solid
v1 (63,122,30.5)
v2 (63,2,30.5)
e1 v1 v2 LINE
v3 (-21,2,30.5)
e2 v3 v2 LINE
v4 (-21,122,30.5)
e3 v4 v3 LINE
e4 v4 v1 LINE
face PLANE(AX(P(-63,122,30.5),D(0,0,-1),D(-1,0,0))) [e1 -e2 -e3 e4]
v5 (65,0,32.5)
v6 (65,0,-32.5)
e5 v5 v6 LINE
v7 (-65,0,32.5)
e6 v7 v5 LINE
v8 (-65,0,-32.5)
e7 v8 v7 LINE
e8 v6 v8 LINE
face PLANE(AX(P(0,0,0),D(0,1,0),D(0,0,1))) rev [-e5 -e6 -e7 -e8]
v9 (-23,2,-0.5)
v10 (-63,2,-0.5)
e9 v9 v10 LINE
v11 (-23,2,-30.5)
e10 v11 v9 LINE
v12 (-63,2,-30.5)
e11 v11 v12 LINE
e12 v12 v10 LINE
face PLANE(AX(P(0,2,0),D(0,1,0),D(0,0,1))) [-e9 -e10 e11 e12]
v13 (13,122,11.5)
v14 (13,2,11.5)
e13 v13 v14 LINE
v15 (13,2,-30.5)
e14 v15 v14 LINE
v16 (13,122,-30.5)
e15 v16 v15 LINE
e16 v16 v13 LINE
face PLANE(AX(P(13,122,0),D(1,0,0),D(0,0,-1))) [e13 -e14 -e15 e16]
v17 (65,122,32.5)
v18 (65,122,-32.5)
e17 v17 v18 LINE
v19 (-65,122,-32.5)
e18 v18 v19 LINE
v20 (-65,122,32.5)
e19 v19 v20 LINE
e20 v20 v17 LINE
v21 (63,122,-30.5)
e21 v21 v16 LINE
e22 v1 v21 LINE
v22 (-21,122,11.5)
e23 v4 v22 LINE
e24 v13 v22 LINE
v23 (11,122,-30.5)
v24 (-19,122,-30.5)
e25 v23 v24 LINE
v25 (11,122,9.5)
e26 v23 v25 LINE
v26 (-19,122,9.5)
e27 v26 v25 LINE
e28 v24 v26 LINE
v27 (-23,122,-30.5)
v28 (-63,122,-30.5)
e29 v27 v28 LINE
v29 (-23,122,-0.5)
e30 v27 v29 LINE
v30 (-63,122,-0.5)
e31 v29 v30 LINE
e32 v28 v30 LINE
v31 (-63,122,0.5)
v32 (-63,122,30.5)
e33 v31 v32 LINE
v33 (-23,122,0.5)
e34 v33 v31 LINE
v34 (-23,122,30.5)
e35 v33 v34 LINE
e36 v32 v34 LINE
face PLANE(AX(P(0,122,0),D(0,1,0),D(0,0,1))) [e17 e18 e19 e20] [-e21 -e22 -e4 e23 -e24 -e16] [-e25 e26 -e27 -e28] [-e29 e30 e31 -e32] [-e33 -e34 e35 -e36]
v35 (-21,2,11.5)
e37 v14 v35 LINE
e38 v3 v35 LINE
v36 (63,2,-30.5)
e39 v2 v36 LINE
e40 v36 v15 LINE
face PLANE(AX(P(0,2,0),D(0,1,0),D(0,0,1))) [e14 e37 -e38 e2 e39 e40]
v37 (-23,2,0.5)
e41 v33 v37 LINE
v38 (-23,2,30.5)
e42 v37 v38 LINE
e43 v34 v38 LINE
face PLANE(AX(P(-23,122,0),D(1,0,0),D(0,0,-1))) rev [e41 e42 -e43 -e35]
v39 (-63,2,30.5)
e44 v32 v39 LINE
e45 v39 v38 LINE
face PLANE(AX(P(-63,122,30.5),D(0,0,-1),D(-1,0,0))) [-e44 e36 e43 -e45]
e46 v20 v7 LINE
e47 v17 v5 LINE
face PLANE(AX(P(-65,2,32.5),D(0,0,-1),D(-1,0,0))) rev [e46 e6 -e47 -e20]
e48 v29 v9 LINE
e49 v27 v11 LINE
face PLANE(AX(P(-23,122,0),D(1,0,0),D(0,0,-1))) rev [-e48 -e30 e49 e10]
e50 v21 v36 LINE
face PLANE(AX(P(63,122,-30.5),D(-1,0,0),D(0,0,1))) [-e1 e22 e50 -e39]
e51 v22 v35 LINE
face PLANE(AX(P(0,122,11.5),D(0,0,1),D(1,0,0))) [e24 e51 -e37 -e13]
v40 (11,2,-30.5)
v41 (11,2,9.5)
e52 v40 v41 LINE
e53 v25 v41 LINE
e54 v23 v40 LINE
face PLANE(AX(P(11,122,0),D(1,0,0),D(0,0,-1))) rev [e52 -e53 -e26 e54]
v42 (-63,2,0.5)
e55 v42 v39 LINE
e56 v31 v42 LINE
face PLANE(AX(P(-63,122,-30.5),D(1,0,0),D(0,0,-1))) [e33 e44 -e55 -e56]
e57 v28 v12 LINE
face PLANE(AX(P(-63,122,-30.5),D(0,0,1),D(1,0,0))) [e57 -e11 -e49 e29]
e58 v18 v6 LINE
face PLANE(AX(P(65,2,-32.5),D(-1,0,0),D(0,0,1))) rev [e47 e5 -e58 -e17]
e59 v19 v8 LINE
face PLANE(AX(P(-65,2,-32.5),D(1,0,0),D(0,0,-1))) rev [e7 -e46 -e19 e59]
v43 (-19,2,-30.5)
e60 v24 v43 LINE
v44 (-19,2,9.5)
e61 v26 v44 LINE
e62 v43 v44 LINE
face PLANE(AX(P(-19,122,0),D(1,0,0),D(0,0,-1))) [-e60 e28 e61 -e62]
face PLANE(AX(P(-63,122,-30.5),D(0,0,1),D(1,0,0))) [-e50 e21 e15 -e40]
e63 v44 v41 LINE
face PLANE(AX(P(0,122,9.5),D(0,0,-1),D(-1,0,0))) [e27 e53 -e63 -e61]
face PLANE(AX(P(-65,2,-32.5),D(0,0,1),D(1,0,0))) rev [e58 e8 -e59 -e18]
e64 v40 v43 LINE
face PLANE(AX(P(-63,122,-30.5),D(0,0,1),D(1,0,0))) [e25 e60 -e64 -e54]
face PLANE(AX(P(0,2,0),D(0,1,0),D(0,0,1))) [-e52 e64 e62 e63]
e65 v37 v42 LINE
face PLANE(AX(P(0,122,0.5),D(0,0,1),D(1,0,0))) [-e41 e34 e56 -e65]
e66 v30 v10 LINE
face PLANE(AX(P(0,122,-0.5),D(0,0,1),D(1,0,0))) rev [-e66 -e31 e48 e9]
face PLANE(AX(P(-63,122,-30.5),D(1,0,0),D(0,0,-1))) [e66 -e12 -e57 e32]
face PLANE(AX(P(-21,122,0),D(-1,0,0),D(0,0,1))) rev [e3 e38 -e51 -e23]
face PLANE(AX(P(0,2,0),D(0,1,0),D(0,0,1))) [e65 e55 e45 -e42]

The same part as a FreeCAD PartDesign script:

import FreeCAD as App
import Part
import Sketcher
from FreeCAD import Vector
Q = App.Units.Quantity

doc = App.newDocument("Part")
body = doc.addObject("PartDesign::Body", "Body")

sketch1 = body.newObject("Sketcher::SketchObject", "Sketch")
sketch1.AttachmentSupport = (doc.getObject("XZ_Plane"), [""])
sketch1.MapMode = "FlatFace"
sketch1.addGeometry([
    Part.LineSegment(Vector(-65, -32, 0), Vector(-65, 32, 0)),
    Part.LineSegment(Vector(-65, 32, 0), Vector(65, 32, 0)),
    Part.LineSegment(Vector(65, 32, 0), Vector(65, -32, 0)),
    Part.LineSegment(Vector(65, -32, 0), Vector(-65, -32, 0)),
], False)
sketch1.addConstraint([
    Sketcher.Constraint("Coincident", 0, 2, 1, 1),
    Sketcher.Constraint("Coincident", 1, 2, 2, 1),
    Sketcher.Constraint("Coincident", 2, 2, 3, 1),
    Sketcher.Constraint("Coincident", 3, 2, 0, 1),
    Sketcher.Constraint("Vertical", 0),
    Sketcher.Constraint("Horizontal", 1),
    Sketcher.Constraint("Vertical", 2),
    Sketcher.Constraint("Horizontal", 3),
    Sketcher.Constraint("Symmetric", 0, 2, 2, 2, -1, 1),
    Sketcher.Constraint("DistanceX", 1, 1, 1, 2, Q("130 mm")),
    Sketcher.Constraint("DistanceY", 0, 1, 0, 2, Q("65 mm")),
])
pad1 = body.newObject("PartDesign::Pad", "Pad")
pad1.Profile = sketch1
pad1.Length = 2
pad1.Reversed = True

sketch2 = body.newObject("Sketcher::SketchObject", "Sketch001")
sketch2.AttachmentSupport = (doc.getObject("XZ_Plane"), [""])
sketch2.MapMode = "FlatFace"
sketch2.AttachmentOffset = App.Placement(Vector(0, 0, -2), App.Rotation())
sketch2.addGeometry([
    Part.LineSegment(Vector(-65, -32, 0), Vector(-65, 32, 0)),
    Part.LineSegment(Vector(-65, 32, 0), Vector(65, 32, 0)),
    Part.LineSegment(Vector(65, 32, 0), Vector(65, -32, 0)),
    Part.LineSegment(Vector(65, -32, 0), Vector(-65, -32, 0)),
    Part.LineSegment(Vector(63, 30, 0), Vector(-63, 30, 0)),
    Part.LineSegment(Vector(-63, 30, 0), Vector(-63, -30, 0)),
    Part.LineSegment(Vector(-63, -30, 0), Vector(63, -30, 0)),
    Part.LineSegment(Vector(63, -30, 0), Vector(63, 30, 0)),
], False)
sketch2.addConstraint([
    Sketcher.Constraint("Coincident", 0, 2, 1, 1),
    Sketcher.Constraint("Coincident", 1, 2, 2, 1),
    Sketcher.Constraint("Coincident", 2, 2, 3, 1),
    Sketcher.Constraint("Coincident", 3, 2, 0, 1),
    Sketcher.Constraint("Coincident", 4, 2, 5, 1),
    Sketcher.Constraint("Coincident", 5, 2, 6, 1),
    Sketcher.Constraint("Coincident", 6, 2, 7, 1),
    Sketcher.Constraint("Coincident", 7, 2, 4, 1),
    Sketcher.Constraint("Vertical", 0),
    Sketcher.Constraint("Horizontal", 1),
    Sketcher.Constraint("Vertical", 2),
    Sketcher.Constraint("Horizontal", 3),
    Sketcher.Constraint("Horizontal", 4),
    Sketcher.Constraint("Vertical", 5),
    Sketcher.Constraint("Horizontal", 6),
    Sketcher.Constraint("Vertical", 7),
    Sketcher.Constraint("Symmetric", 0, 2, 2, 2, -1, 1),
    Sketcher.Constraint("Symmetric", 4, 2, 6, 2, -1, 1),
    Sketcher.Constraint("DistanceX", 1, 1, 1, 2, Q("130 mm")),
    Sketcher.Constraint("DistanceX", 4, 2, 4, 1, Q("126 mm")),
    Sketcher.Constraint("DistanceY", 0, 1, 0, 2, Q("65 mm")),
    Sketcher.Constraint("DistanceY", 5, 2, 5, 1, Q("61 mm")),
])
pad2 = body.newObject("PartDesign::Pad", "Pad001")
pad2.Profile = sketch2
pad2.Length = 120
pad2.Reversed = True

sketch3 = body.newObject("Sketcher::SketchObject", "Sketch002")
sketch3.AttachmentSupport = (doc.getObject("XZ_Plane"), [""])
sketch3.MapMode = "FlatFace"
sketch3.AttachmentOffset = App.Placement(Vector(0, 0, -2), App.Rotation())
sketch3.addGeometry([
    Part.LineSegment(Vector(-23, -30.5, 0), Vector(-23, -0.5, 0)),
    Part.LineSegment(Vector(-23, -0.5, 0), Vector(-63, -0.5, 0)),
    Part.LineSegment(Vector(-63, -0.5, 0), Vector(-63, 0.5, 0)),
    Part.LineSegment(Vector(-63, 0.5, 0), Vector(-23, 0.5, 0)),
    Part.LineSegment(Vector(-23, 0.5, 0), Vector(-23, 30.5, 0)),
    Part.LineSegment(Vector(-23, 30.5, 0), Vector(-21, 30.5, 0)),
    Part.LineSegment(Vector(-21, 30.5, 0), Vector(-21, 11.5, 0)),
    Part.LineSegment(Vector(-21, 11.5, 0), Vector(13, 11.5, 0)),
    Part.LineSegment(Vector(13, 11.5, 0), Vector(13, -30.5, 0)),
    Part.LineSegment(Vector(13, -30.5, 0), Vector(11, -30.5, 0)),
    Part.LineSegment(Vector(11, -30.5, 0), Vector(11, 9.5, 0)),
    Part.LineSegment(Vector(11, 9.5, 0), Vector(-19, 9.5, 0)),
    Part.LineSegment(Vector(-19, 9.5, 0), Vector(-19, -30.5, 0)),
    Part.LineSegment(Vector(-19, -30.5, 0), Vector(-23, -30.5, 0)),
], False)
sketch3.addConstraint([
    Sketcher.Constraint("Coincident", 0, 2, 1, 1),
    Sketcher.Constraint("Coincident", 1, 2, 2, 1),
    Sketcher.Constraint("Coincident", 2, 2, 3, 1),
    Sketcher.Constraint("Coincident", 3, 2, 4, 1),
    Sketcher.Constraint("Coincident", 4, 2, 5, 1),
    Sketcher.Constraint("Coincident", 5, 2, 6, 1),
    Sketcher.Constraint("Coincident", 6, 2, 7, 1),
    Sketcher.Constraint("Coincident", 7, 2, 8, 1),
    Sketcher.Constraint("Coincident", 8, 2, 9, 1),
    Sketcher.Constraint("Coincident", 9, 2, 10, 1),
    Sketcher.Constraint("Coincident", 10, 2, 11, 1),
    Sketcher.Constraint("Coincident", 11, 2, 12, 1),
    Sketcher.Constraint("Coincident", 12, 2, 13, 1),
    Sketcher.Constraint("Coincident", 13, 2, 0, 1),
    Sketcher.Constraint("Vertical", 0),
    Sketcher.Constraint("Horizontal", 1),
    Sketcher.Constraint("Vertical", 2),
    Sketcher.Constraint("Horizontal", 3),
    Sketcher.Constraint("Vertical", 4),
    Sketcher.Constraint("Horizontal", 5),
    Sketcher.Constraint("Vertical", 6),
    Sketcher.Constraint("Horizontal", 7),
    Sketcher.Constraint("Vertical", 8),
    Sketcher.Constraint("Horizontal", 9),
    Sketcher.Constraint("Vertical", 10),
    Sketcher.Constraint("Horizontal", 11),
    Sketcher.Constraint("Vertical", 12),
    Sketcher.Constraint("Horizontal", 13),
    Sketcher.Constraint("Symmetric", 0, 2, 3, 2, -1),
    Sketcher.Constraint("Horizontal", 9, 2, 12, 2),
    Sketcher.Constraint("Equal", 5, 9),
    Sketcher.Constraint("Equal", 11, 0),
    Sketcher.Constraint("Equal", 0, 4),
    Sketcher.Constraint("Equal", 3, 10),
    Sketcher.Constraint("DistanceX", 1, 2, 1, 1, Q("40 mm")),
    Sketcher.Constraint("DistanceX", 5, 1, 5, 2, Q("2 mm")),
    Sketcher.Constraint("DistanceX", 7, 1, 7, 2, Q("34 mm")),
    Sketcher.Constraint("DistanceX", 11, 2, 11, 1, Q("30 mm")),
    Sketcher.Constraint("DistanceY", 2, 1, 2, 2, Q("1 mm")),
    Sketcher.Constraint("DistanceY", 6, 2, 6, 1, Q("19 mm")),
    Sketcher.Constraint("DistanceX", 0, 2, -1, 1, Q("23 mm")),
])
pad3 = body.newObject("PartDesign::Pad", "Pad002")
pad3.Profile = sketch3
pad3.Length = 120
pad3.Reversed = True

doc.recompute()
